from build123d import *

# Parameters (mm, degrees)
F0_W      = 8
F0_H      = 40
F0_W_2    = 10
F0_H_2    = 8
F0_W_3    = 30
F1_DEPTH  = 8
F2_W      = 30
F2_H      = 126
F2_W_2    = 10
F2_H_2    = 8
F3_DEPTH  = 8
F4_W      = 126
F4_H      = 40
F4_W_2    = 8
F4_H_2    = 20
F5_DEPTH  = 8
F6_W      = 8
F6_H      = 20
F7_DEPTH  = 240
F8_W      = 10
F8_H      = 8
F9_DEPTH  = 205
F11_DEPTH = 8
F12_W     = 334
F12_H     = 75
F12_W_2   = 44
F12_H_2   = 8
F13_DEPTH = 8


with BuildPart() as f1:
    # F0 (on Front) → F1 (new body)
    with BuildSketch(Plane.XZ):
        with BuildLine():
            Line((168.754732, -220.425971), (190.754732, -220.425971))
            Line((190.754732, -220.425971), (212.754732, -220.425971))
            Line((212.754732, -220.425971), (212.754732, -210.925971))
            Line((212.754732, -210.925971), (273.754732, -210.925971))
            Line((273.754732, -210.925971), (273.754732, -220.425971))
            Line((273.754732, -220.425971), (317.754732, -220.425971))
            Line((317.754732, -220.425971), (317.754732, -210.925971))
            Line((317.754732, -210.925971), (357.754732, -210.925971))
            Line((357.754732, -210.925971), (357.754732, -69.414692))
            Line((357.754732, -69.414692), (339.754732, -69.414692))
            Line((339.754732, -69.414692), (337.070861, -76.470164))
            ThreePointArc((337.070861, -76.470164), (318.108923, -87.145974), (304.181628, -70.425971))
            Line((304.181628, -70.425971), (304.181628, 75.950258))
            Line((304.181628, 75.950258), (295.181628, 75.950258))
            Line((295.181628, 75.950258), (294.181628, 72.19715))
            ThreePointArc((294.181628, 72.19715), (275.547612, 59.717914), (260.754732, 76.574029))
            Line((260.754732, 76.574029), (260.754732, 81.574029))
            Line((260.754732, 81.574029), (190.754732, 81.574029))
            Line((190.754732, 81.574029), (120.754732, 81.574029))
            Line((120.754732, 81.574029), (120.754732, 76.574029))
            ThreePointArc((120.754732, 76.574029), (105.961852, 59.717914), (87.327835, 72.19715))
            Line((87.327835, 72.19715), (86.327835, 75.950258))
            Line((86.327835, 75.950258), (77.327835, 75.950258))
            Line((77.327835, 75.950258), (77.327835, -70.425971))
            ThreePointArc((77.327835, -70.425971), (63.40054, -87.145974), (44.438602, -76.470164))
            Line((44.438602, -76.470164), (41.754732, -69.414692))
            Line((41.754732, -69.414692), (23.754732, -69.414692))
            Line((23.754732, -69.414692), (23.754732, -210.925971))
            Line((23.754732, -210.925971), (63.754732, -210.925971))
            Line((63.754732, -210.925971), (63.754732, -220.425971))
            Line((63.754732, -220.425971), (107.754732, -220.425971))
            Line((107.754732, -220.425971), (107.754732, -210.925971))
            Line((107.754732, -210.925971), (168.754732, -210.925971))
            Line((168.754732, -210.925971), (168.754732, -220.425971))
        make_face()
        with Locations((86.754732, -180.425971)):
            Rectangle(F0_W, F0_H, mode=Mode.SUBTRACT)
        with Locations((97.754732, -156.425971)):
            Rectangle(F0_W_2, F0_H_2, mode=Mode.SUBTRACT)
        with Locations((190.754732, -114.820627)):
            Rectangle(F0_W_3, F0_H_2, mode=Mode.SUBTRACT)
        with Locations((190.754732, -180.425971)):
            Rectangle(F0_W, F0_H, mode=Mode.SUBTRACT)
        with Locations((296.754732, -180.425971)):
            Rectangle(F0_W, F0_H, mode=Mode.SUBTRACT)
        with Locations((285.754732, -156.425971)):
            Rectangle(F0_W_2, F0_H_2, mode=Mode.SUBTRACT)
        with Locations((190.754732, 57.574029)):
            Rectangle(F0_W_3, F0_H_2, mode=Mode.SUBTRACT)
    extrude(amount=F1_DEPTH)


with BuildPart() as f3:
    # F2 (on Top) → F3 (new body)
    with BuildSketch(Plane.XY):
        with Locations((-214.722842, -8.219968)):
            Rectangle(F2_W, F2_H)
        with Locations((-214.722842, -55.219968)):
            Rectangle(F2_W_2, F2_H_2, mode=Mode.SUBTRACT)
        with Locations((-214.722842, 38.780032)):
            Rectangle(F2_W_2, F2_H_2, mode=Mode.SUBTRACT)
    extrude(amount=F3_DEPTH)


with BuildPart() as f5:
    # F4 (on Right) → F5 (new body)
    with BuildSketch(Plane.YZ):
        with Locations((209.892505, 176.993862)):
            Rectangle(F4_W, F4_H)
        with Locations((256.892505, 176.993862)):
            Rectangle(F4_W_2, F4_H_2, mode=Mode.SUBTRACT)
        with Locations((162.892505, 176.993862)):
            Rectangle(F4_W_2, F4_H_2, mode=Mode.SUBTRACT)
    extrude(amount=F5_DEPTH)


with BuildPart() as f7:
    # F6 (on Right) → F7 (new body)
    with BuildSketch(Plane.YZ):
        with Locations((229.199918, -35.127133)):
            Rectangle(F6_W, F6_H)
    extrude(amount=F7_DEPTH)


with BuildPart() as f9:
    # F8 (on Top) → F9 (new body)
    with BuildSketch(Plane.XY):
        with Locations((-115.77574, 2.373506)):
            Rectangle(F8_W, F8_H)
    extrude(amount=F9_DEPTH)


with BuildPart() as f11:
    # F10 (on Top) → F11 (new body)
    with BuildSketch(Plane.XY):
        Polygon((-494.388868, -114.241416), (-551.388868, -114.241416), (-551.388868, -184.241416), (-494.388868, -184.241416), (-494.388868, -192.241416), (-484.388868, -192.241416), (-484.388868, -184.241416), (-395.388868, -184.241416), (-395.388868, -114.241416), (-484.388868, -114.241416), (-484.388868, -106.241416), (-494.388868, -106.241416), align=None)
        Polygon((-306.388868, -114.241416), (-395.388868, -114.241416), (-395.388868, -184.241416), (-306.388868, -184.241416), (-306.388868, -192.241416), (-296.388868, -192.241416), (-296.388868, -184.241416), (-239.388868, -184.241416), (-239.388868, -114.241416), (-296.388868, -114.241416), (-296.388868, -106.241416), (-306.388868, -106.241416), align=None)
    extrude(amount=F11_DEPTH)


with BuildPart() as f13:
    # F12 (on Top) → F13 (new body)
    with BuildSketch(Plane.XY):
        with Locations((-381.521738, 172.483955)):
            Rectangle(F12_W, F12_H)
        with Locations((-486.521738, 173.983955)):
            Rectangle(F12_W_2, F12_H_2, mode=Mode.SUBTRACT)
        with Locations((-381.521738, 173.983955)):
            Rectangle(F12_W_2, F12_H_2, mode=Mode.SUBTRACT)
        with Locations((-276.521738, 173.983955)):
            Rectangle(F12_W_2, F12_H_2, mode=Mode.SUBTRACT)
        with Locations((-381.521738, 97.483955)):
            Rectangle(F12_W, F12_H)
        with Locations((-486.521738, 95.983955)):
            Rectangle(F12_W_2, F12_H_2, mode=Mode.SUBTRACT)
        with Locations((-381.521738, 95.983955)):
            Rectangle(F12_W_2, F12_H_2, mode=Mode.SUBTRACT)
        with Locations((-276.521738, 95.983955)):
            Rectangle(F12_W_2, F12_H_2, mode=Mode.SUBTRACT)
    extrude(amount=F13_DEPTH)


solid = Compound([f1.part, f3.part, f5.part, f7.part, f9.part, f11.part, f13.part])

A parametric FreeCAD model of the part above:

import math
import FreeCAD as App
import Part
import Sketcher

V = App.Vector


def add_polygon(sketch, points):
    """Adds a closed chain of lines whose ends are joined by coincident constraints."""
    first, n = sketch.GeometryCount, len(points)
    for a, b in zip(points, points[1:] + points[:1]):
        sketch.addGeometry(Part.LineSegment(App.Vector(*a, 0), App.Vector(*b, 0)), False)
    for i in range(n):
        sketch.addConstraint(Sketcher.Constraint("Coincident", first + i, 2, first + (i + 1) % n, 1))

doc = App.newDocument("Part")
body = doc.addObject("PartDesign::Body", "Body")

sketch1 = body.newObject("Sketcher::SketchObject", "Sketch")
sketch1.AttachmentSupport = (doc.getObject("XZ_Plane"), [""])
sketch1.MapMode = "FlatFace"
sketch1.addGeometry(Part.LineSegment(V(168.8, -220.4, 0), V(212.8, -220.4, 0)), False)
sketch1.addGeometry(Part.LineSegment(V(212.8, -220.4, 0), V(212.8, -210.9, 0)), False)
sketch1.addGeometry(Part.LineSegment(V(212.8, -210.9, 0), V(273.8, -210.9, 0)), False)
sketch1.addGeometry(Part.LineSegment(V(273.8, -210.9, 0), V(273.8, -220.4, 0)), False)
sketch1.addGeometry(Part.LineSegment(V(273.8, -220.4, 0), V(317.8, -220.4, 0)), False)
sketch1.addGeometry(Part.LineSegment(V(317.8, -220.4, 0), V(317.8, -210.9, 0)), False)
sketch1.addGeometry(Part.LineSegment(V(317.8, -210.9, 0), V(357.8, -210.9, 0)), False)
sketch1.addGeometry(Part.LineSegment(V(357.8, -210.9, 0), V(357.8, -69.4, 0)), False)
sketch1.addGeometry(Part.LineSegment(V(357.8, -69.4, 0), V(339.8, -69.4, 0)), False)
sketch1.addGeometry(Part.LineSegment(V(339.8, -69.4, 0), V(337.1, -76.5, 0)), False)
sketch1.addGeometry(Part.ArcOfCircle(Part.Circle(V(321.2, -70.4, 0), V(0, 0, 1), 17), math.radians(180), math.radians(339)), False)
sketch1.addGeometry(Part.LineSegment(V(304.2, -70.4, 0), V(304.2, 76, 0)), False)
sketch1.addGeometry(Part.LineSegment(V(304.2, 76, 0), V(295.2, 76, 0)), False)
sketch1.addGeometry(Part.LineSegment(V(295.2, 76, 0), V(294.2, 72.2, 0)), False)
sketch1.addGeometry(Part.ArcOfCircle(Part.Circle(V(277.8, 76.6, 0), V(0, 0, 1), 17), math.radians(-180), math.radians(-15)), False)
sketch1.addGeometry(Part.LineSegment(V(260.8, 76.6, 0), V(260.8, 81.6, 0)), False)
sketch1.addGeometry(Part.LineSegment(V(260.8, 81.6, 0), V(120.8, 81.6, 0)), False)
sketch1.addGeometry(Part.LineSegment(V(120.8, 81.6, 0), V(120.8, 76.6, 0)), False)
sketch1.addGeometry(Part.ArcOfCircle(Part.Circle(V(103.8, 76.6, 0), V(0, 0, 1), 17), math.radians(-165), math.radians(0)), False)
sketch1.addGeometry(Part.LineSegment(V(87.3, 72.2, 0), V(86.3, 76, 0)), False)
sketch1.addGeometry(Part.LineSegment(V(86.3, 76, 0), V(77.3, 76, 0)), False)
sketch1.addGeometry(Part.LineSegment(V(77.3, 76, 0), V(77.3, -70.4, 0)), False)
sketch1.addGeometry(Part.ArcOfCircle(Part.Circle(V(60.3, -70.4, 0), V(0, 0, 1), 17), math.radians(-159), math.radians(0)), False)
sketch1.addGeometry(Part.LineSegment(V(44.4, -76.5, 0), V(41.8, -69.4, 0)), False)
sketch1.addGeometry(Part.LineSegment(V(41.8, -69.4, 0), V(23.8, -69.4, 0)), False)
sketch1.addGeometry(Part.LineSegment(V(23.8, -69.4, 0), V(23.8, -210.9, 0)), False)
sketch1.addGeometry(Part.LineSegment(V(23.8, -210.9, 0), V(63.8, -210.9, 0)), False)
sketch1.addGeometry(Part.LineSegment(V(63.8, -210.9, 0), V(63.8, -220.4, 0)), False)
sketch1.addGeometry(Part.LineSegment(V(63.8, -220.4, 0), V(107.8, -220.4, 0)), False)
sketch1.addGeometry(Part.LineSegment(V(107.8, -220.4, 0), V(107.8, -210.9, 0)), False)
sketch1.addGeometry(Part.LineSegment(V(107.8, -210.9, 0), V(168.8, -210.9, 0)), False)
sketch1.addGeometry(Part.LineSegment(V(168.8, -210.9, 0), V(168.8, -220.4, 0)), False)
add_polygon(sketch1, [(90.8, -200.4), (82.8, -200.4), (82.8, -160.4), (90.8, -160.4)])
add_polygon(sketch1, [(102.8, -160.4), (92.8, -160.4), (92.8, -152.4), (102.8, -152.4)])
add_polygon(sketch1, [(194.8, -200.4), (186.8, -200.4), (186.8, -160.4), (194.8, -160.4)])
add_polygon(sketch1, [(205.8, -118.8), (175.8, -118.8), (175.8, -110.8), (205.8, -110.8)])
add_polygon(sketch1, [(300.8, -200.4), (292.8, -200.4), (292.8, -160.4), (300.8, -160.4)])
add_polygon(sketch1, [(290.8, -160.4), (280.8, -160.4), (280.8, -152.4), (290.8, -152.4)])
add_polygon(sketch1, [(205.8, 53.6), (175.8, 53.6), (175.8, 61.6), (205.8, 61.6)])
sketch1.addConstraint([
    Sketcher.Constraint("Coincident", 0, 2, 1, 1),
    Sketcher.Constraint("Coincident", 1, 2, 2, 1),
    Sketcher.Constraint("Coincident", 2, 2, 3, 1),
    Sketcher.Constraint("Coincident", 3, 2, 4, 1),
    Sketcher.Constraint("Coincident", 4, 2, 5, 1),
    Sketcher.Constraint("Coincident", 5, 2, 6, 1),
    Sketcher.Constraint("Coincident", 6, 2, 7, 1),
    Sketcher.Constraint("Coincident", 7, 2, 8, 1),
    Sketcher.Constraint("Coincident", 8, 2, 9, 1),
    Sketcher.Constraint("Tangent", 9, 2, 10, 2),
    Sketcher.Constraint("Tangent", 10, 1, 11, 1),
    Sketcher.Constraint("Coincident", 11, 2, 12, 1),
    Sketcher.Constraint("Coincident", 12, 2, 13, 1),
    Sketcher.Constraint("Tangent", 13, 2, 14, 2),
    Sketcher.Constraint("Tangent", 14, 1, 15, 1),
    Sketcher.Constraint("Coincident", 15, 2, 16, 1),
    Sketcher.Constraint("Coincident", 16, 2, 17, 1),
    Sketcher.Constraint("Tangent", 17, 2, 18, 2),
    Sketcher.Constraint("Tangent", 18, 1, 19, 1),
    Sketcher.Constraint("Coincident", 19, 2, 20, 1),
    Sketcher.Constraint("Coincident", 20, 2, 21, 1),
    Sketcher.Constraint("Tangent", 21, 2, 22, 2),
    Sketcher.Constraint("Tangent", 22, 1, 23, 1),
    Sketcher.Constraint("Coincident", 23, 2, 24, 1),
    Sketcher.Constraint("Coincident", 24, 2, 25, 1),
    Sketcher.Constraint("Coincident", 25, 2, 26, 1),
    Sketcher.Constraint("Coincident", 26, 2, 27, 1),
    Sketcher.Constraint("Coincident", 27, 2, 28, 1),
    Sketcher.Constraint("Coincident", 28, 2, 29, 1),
    Sketcher.Constraint("Coincident", 29, 2, 30, 1),
    Sketcher.Constraint("Coincident", 30, 2, 31, 1),
    Sketcher.Constraint("Coincident", 31, 2, 0, 1),
    Sketcher.Constraint("Horizontal", 0),
    Sketcher.Constraint("Vertical", 1),
    Sketcher.Constraint("Horizontal", 2),
    Sketcher.Constraint("Vertical", 3),
    Sketcher.Constraint("Horizontal", 4),
    Sketcher.Constraint("Vertical", 5),
    Sketcher.Constraint("Horizontal", 6),
    Sketcher.Constraint("Vertical", 7),
    Sketcher.Constraint("Horizontal", 8),
    Sketcher.Constraint("Vertical", 11),
    Sketcher.Constraint("Horizontal", 12),
    Sketcher.Constraint("Vertical", 15),
    Sketcher.Constraint("Horizontal", 16),
    Sketcher.Constraint("Vertical", 17),
    Sketcher.Constraint("Horizontal", 20),
    Sketcher.Constraint("Vertical", 21),
    Sketcher.Constraint("Horizontal", 24),
    Sketcher.Constraint("Vertical", 25),
    Sketcher.Constraint("Horizontal", 26),
    Sketcher.Constraint("Vertical", 27),
    Sketcher.Constraint("Horizontal", 28),
    Sketcher.Constraint("Vertical", 29),
    Sketcher.Constraint("Horizontal", 30),
    Sketcher.Constraint("Vertical", 31),
    Sketcher.Constraint("Horizontal", 32),
    Sketcher.Constraint("Vertical", 33),
    Sketcher.Constraint("Horizontal", 34),
    Sketcher.Constraint("Vertical", 35),
    Sketcher.Constraint("Horizontal", 36),
    Sketcher.Constraint("Vertical", 37),
    Sketcher.Constraint("Horizontal", 38),
    Sketcher.Constraint("Vertical", 39),
    Sketcher.Constraint("Horizontal", 40),
    Sketcher.Constraint("Vertical", 41),
    Sketcher.Constraint("Horizontal", 42),
    Sketcher.Constraint("Vertical", 43),
    Sketcher.Constraint("Horizontal", 44),
    Sketcher.Constraint("Vertical", 45),
    Sketcher.Constraint("Horizontal", 46),
    Sketcher.Constraint("Vertical", 47),
    Sketcher.Constraint("Horizontal", 48),
    Sketcher.Constraint("Vertical", 49),
    Sketcher.Constraint("Horizontal", 50),
    Sketcher.Constraint("Vertical", 51),
    Sketcher.Constraint("Horizontal", 52),
    Sketcher.Constraint("Vertical", 53),
    Sketcher.Constraint("Horizontal", 54),
    Sketcher.Constraint("Vertical", 55),
    Sketcher.Constraint("Horizontal", 56),
    Sketcher.Constraint("Vertical", 57),
    Sketcher.Constraint("Horizontal", 58),
    Sketcher.Constraint("Vertical", 59),
    Sketcher.Constraint("Equal", 10, 14),
    Sketcher.Constraint("Equal", 14, 18),
    Sketcher.Constraint("Equal", 18, 22),
    Sketcher.Constraint("Horizontal", 14, 3, 18, 3),
    Sketcher.Constraint("Horizontal", 10, 3, 22, 3),
    Sketcher.Constraint("Horizontal", 0, 2, 3, 2),
    Sketcher.Constraint("Horizontal", 2, 2, 5, 2),
    Sketcher.Constraint("Horizontal", 13, 2, 18, 1),
    Sketcher.Constraint("Horizontal", 12, 2, 19, 2),
    Sketcher.Constraint("Horizontal", 9, 2, 22, 1),
    Sketcher.Constraint("Horizontal", 8, 2, 23, 2),
    Sketcher.Constraint("Horizontal", 6, 2, 25, 2),
    Sketcher.Constraint("Horizontal", 4, 2, 27, 2),
    Sketcher.Constraint("Horizontal", 26, 2, 29, 2),
    Sketcher.Constraint("Horizontal", 34, 2, 36, 2),
    Sketcher.Constraint("Horizontal", 35, 2, 40, 2),
    Sketcher.Constraint("Horizontal", 39, 2, 41, 2),
    Sketcher.Constraint("Horizontal", 43, 2, 48, 2),
    Sketcher.Constraint("Horizontal", 42, 2, 49, 2),
    Sketcher.Constraint("Horizontal", 50, 2, 52, 2),
    Sketcher.Constraint("Horizontal", 38, 2, 53, 2),
    Sketcher.Constraint("Vertical", 45, 2, 56, 2),
    Sketcher.Constraint("Vertical", 47, 2, 58, 2),
    Sketcher.Constraint("Equal", 0, 4),
    Sketcher.Constraint("Equal", 12, 20),
    Sketcher.Constraint("Equal", 8, 24),
    Sketcher.Constraint("Equal", 6, 26),
    Sketcher.Constraint("Equal", 4, 28),
    Sketcher.Constraint("Equal", 2, 30),
    Sketcher.Constraint("Equal", 34, 40),
    Sketcher.Constraint("Equal", 42, 48),
    Sketcher.Constraint("Equal", 38, 52),
    Sketcher.Constraint("Equal", 26, 33),
    Sketcher.Constraint("Equal", 50, 37),
    Sketcher.Constraint("Equal", 39, 45),
    Sketcher.Constraint("Equal", 55, 57),
    Sketcher.Constraint("Radius", 10, 17.0),
    Sketcher.Constraint("DistanceX", 0, 1, 0, 2, 44.0),
    Sketcher.Constraint("DistanceX", 2, 1, 2, 2, 61.0),
    Sketcher.Constraint("DistanceX", 6, 1, 6, 2, 40.0),
    Sketcher.Constraint("DistanceX", 8, 2, 8, 1, 18.0),
    Sketcher.Constraint("DistanceX", 12, 2, 12, 1, 9.0),
    Sketcher.Constraint("DistanceX", 16, 2, 16, 1, 140.0),
    Sketcher.Constraint("DistanceX", 32, 2, 32, 1, 8.0),
    Sketcher.Constraint("DistanceX", 36, 2, 36, 1, 10.0),
    Sketcher.Constraint("DistanceX", 44, 2, 44, 1, 30.0),
    Sketcher.Constraint("DistanceY", 15, 1, 15, 2, 5.0),
    Sketcher.Constraint("DistanceY", 1, 1, 1, 2, 9.5),
    Sketcher.Constraint("Distance", 9, 7.548698),
    Sketcher.Constraint("DistanceY", 7, 1, 7, 2, 141.511279),
    Sketcher.Constraint("DistanceY", 11, 1, 11, 2, 146.376229),
    Sketcher.Constraint("DistanceX", -1, 1, 22, 1, 44.438602),
    Sketcher.Constraint("DistanceY", 10, 3, -1, 1, 70.425972),
    Sketcher.Constraint("DistanceX", -1, 1, 14, 3, 277.754732),
    Sketcher.Constraint("DistanceY", -1, 1, 14, 3, 76.574029),
    Sketcher.Constraint("DistanceY", 32, 2, -1, 1, 200.425971),
    Sketcher.Constraint("DistanceX", -1, 1, 40, 2, 186.754732),
    Sketcher.Constraint("DistanceX", -1, 1, 44, 2, 175.754732),
    Sketcher.Constraint("DistanceX", -1, 1, 48, 2, 292.754732),
    Sketcher.Constraint("DistanceX", -1, 1, 52, 2, 280.754732),
    Sketcher.Constraint("DistanceY", -1, 1, 56, 2, 53.574029),
    Sketcher.Constraint("DistanceX", -1, 1, 32, 2, 82.754732),
    Sketcher.Constraint("DistanceX", -1, 1, 36, 2, 92.754732),
    Sketcher.Constraint("DistanceY", 44, 2, -1, 1, 118.820627),
])
pad1 = body.newObject("PartDesign::Pad", "Pad")
pad1.Profile = sketch1
pad1.Length = 8
body2 = doc.addObject("PartDesign::Body", "Body001")

sketch2 = body2.newObject("Sketcher::SketchObject", "Sketch001")
sketch2.AttachmentSupport = (doc.getObject("XY_Plane001"), [""])
sketch2.MapMode = "FlatFace"
add_polygon(sketch2, [(-230, 55), (-230, -71), (-200, -71), (-200, 55)])
add_polygon(sketch2, [(-210, -59), (-220, -59), (-220, -51), (-210, -51)])
add_polygon(sketch2, [(-210, 35), (-220, 35), (-220, 43), (-210, 43)])
sketch2.addConstraint([
    Sketcher.Constraint("Vertical", 0),
    Sketcher.Constraint("Horizontal", 1),
    Sketcher.Constraint("Vertical", 2),
    Sketcher.Constraint("Horizontal", 3),
    Sketcher.Constraint("Horizontal", 4),
    Sketcher.Constraint("Vertical", 5),
    Sketcher.Constraint("Horizontal", 6),
    Sketcher.Constraint("Vertical", 7),
    Sketcher.Constraint("Horizontal", 8),
    Sketcher.Constraint("Vertical", 9),
    Sketcher.Constraint("Horizontal", 10),
    Sketcher.Constraint("Vertical", 11),
    Sketcher.Constraint("Vertical", 5, 2, 8, 2),
    Sketcher.Constraint("Vertical", 7, 2, 10, 2),
    Sketcher.Constraint("Equal", 7, 9),
    Sketcher.Constraint("DistanceX", 1, 1, 1, 2, 30.0),
    Sketcher.Constraint("DistanceX", 4, 2, 4, 1, 10.0),
    Sketcher.Constraint("DistanceY", 0, 2, 0, 1, 126.0),
    Sketcher.Constraint("DistanceY", 5, 1, 5, 2, 8.0),
    Sketcher.Constraint("DistanceX", 0, 2, 4, 2, 10.0),
    Sketcher.Constraint("DistanceY", 0, 2, 4, 2, 12.0),
    Sketcher.Constraint("DistanceY", 8, 2, 3, 2, 20.0),
    Sketcher.Constraint("DistanceX", 0, 2, -1, 1, 229.722842),
    Sketcher.Constraint("DistanceY", 0, 2, -1, 1, 71.219968),
])
pad2 = body2.newObject("PartDesign::Pad", "Pad001")
pad2.Profile = sketch2
pad2.Length = 8
body3 = doc.addObject("PartDesign::Body", "Body002")

sketch3 = body3.newObject("Sketcher::SketchObject", "Sketch002")
sketch3.AttachmentSupport = (doc.getObject("YZ_Plane002"), [""])
sketch3.MapMode = "FlatFace"
add_polygon(sketch3, [(147, 197), (147, 157), (273, 157), (273, 197)])
add_polygon(sketch3, [(167, 167), (159, 167), (159, 187), (167, 187)])
add_polygon(sketch3, [(261, 167), (253, 167), (253, 187), (261, 187)])
sketch3.addConstraint([
    Sketcher.Constraint("Vertical", 0),
    Sketcher.Constraint("Horizontal", 1),
    Sketcher.Constraint("Vertical", 2),
    Sketcher.Constraint("Horizontal", 3),
    Sketcher.Constraint("Horizontal", 4),
    Sketcher.Constraint("Vertical", 5),
    Sketcher.Constraint("Horizontal", 6),
    Sketcher.Constraint("Vertical", 7),
    Sketcher.Constraint("Horizontal", 8),
    Sketcher.Constraint("Vertical", 9),
    Sketcher.Constraint("Horizontal", 10),
    Sketcher.Constraint("Vertical", 11),
    Sketcher.Constraint("Horizontal", 7, 2, 8, 2),
    Sketcher.Constraint("Horizontal", 6, 2, 9, 2),
    Sketcher.Constraint("Equal", 6, 8),
    Sketcher.Constraint("DistanceX", 1, 1, 1, 2, 126.0),
    Sketcher.Constraint("DistanceX", 4, 2, 4, 1, 8.0),
    Sketcher.Constraint("DistanceY", 0, 2, 0, 1, 40.0),
    Sketcher.Constraint("DistanceY", 5, 1, 5, 2, 20.0),
    Sketcher.Constraint("DistanceX", 0, 2, 4, 2, 12.0),
    Sketcher.Constraint("DistanceY", 0, 2, 4, 2, 10.0),
    Sketcher.Constraint("DistanceX", 8, 2, 1, 2, 20.0),
    Sketcher.Constraint("DistanceY", -1, 1, 0, 2, 156.993862),
    Sketcher.Constraint("DistanceX", -1, 1, 0, 2, 146.892505),
])
pad3 = body3.newObject("PartDesign::Pad", "Pad002")
pad3.Profile = sketch3
pad3.Length = 8
body4 = doc.addObject("PartDesign::Body", "Body003")

sketch4 = body4.newObject("Sketcher::SketchObject", "Sketch003")
sketch4.AttachmentSupport = (doc.getObject("YZ_Plane003"), [""])
sketch4.MapMode = "FlatFace"
add_polygon(sketch4, [(225, -25), (225, -45), (233, -45), (233, -25)])
sketch4.addConstraint([
    Sketcher.Constraint("Vertical", 0),
    Sketcher.Constraint("Horizontal", 1),
    Sketcher.Constraint("Vertical", 2),
    Sketcher.Constraint("Horizontal", 3),
    Sketcher.Constraint("DistanceX", 1, 1, 1, 2, 8.0),
    Sketcher.Constraint("DistanceY", 0, 2, 0, 1, 20.0),
    Sketcher.Constraint("DistanceX", -1, 1, 0, 2, 225.199918),
    Sketcher.Constraint("DistanceY", 0, 2, -1, 1, 45.127133),
])
pad4 = body4.newObject("PartDesign::Pad", "Pad003")
pad4.Profile = sketch4
pad4.Length = 240
body5 = doc.addObject("PartDesign::Body", "Body004")

sketch5 = body5.newObject("Sketcher::SketchObject", "Sketch004")
sketch5.AttachmentSupport = (doc.getObject("XY_Plane004"), [""])
sketch5.MapMode = "FlatFace"
add_polygon(sketch5, [(-121, 6), (-121, -2), (-111, -2), (-111, 6)])
sketch5.addConstraint([
    Sketcher.Constraint("Vertical", 0),
    Sketcher.Constraint("Horizontal", 1),
    Sketcher.Constraint("Vertical", 2),
    Sketcher.Constraint("Horizontal", 3),
    Sketcher.Constraint("DistanceX", 1, 1, 1, 2, 10.0),
    Sketcher.Constraint("DistanceY", 0, 2, 0, 1, 8.0),
    Sketcher.Constraint("DistanceX", 0, 2, -1, 1, 120.77574),
    Sketcher.Constraint("DistanceY", 0, 2, -1, 1, 1.626494),
])
pad5 = body5.newObject("PartDesign::Pad", "Pad004")
pad5.Profile = sketch5
pad5.Length = 205
body6 = doc.addObject("PartDesign::Body", "Body005")

sketch6 = body6.newObject("Sketcher::SketchObject", "Sketch005")
sketch6.AttachmentSupport = (doc.getObject("XY_Plane005"), [""])
sketch6.MapMode = "FlatFace"
add_polygon(sketch6, [(-494, -114), (-551, -114), (-551, -184), (-494, -184), (-494, -192), (-484, -192), (-484, -184), (-306, -184), (-306, -192), (-296, -192), (-296, -184), (-239, -184), (-239, -114), (-296, -114), (-296, -106), (-306, -106), (-306, -114), (-484, -114), (-484, -106), (-494, -106)])
sketch6.addConstraint([
    Sketcher.Constraint("Horizontal", 0),
    Sketcher.Constraint("Vertical", 1),
    Sketcher.Constraint("Horizontal", 2),
    Sketcher.Constraint("Vertical", 3),
    Sketcher.Constraint("Horizontal", 4),
    Sketcher.Constraint("Vertical", 5),
    Sketcher.Constraint("Horizontal", 6),
    Sketcher.Constraint("Vertical", 7),
    Sketcher.Constraint("Horizontal", 8),
    Sketcher.Constraint("Vertical", 9),
    Sketcher.Constraint("Horizontal", 10),
    Sketcher.Constraint("Vertical", 11),
    Sketcher.Constraint("Horizontal", 12),
    Sketcher.Constraint("Vertical", 13),
    Sketcher.Constraint("Horizontal", 14),
    Sketcher.Constraint("Vertical", 15),
    Sketcher.Constraint("Horizontal", 16),
    Sketcher.Constraint("Vertical", 17),
    Sketcher.Constraint("Horizontal", 18),
    Sketcher.Constraint("Vertical", 19),
    Sketcher.Constraint("Horizontal", 2, 2, 5, 2),
    Sketcher.Constraint("Horizontal", 4, 2, 7, 2),
    Sketcher.Constraint("Horizontal", 6, 2, 9, 2),
    Sketcher.Constraint("Horizontal", 0, 2, 11, 2),
    Sketcher.Constraint("Horizontal", 12, 2, 15, 2),
    Sketcher.Constraint("Horizontal", 14, 2, 17, 2),
    Sketcher.Constraint("Vertical", 9, 2, 12, 2),
    Sketcher.Constraint("Vertical", 7, 2, 14, 2),
    Sketcher.Constraint("Vertical", 5, 2, 16, 2),
    Sketcher.Constraint("Vertical", 3, 2, 18, 2),
    Sketcher.Constraint("Equal", 4, 8),
    Sketcher.Constraint("Equal", 2, 10),
    Sketcher.Constraint("Equal", 9, 13),
    Sketcher.Constraint("DistanceX", 0, 2, 0, 1, 57.0),
    Sketcher.Constraint("DistanceX", 4, 1, 4, 2, 10.0),
    Sketcher.Constraint("DistanceX", 6, 1, 6, 2, 178.0),
    Sketcher.Constraint("DistanceY", 1, 2, 1, 1, 70.0),
    Sketcher.Constraint("DistanceY", 3, 2, 3, 1, 8.0),
    Sketcher.Constraint("DistanceX", 0, 2, -1, 1, 551.388868),
    Sketcher.Constraint("DistanceY", 0, 2, -1, 1, 114.241416),
])
pad6 = body6.newObject("PartDesign::Pad", "Pad005")
pad6.Profile = sketch6
pad6.Length = 8
body7 = doc.addObject("PartDesign::Body", "Body006")

sketch7 = body7.newObject("Sketcher::SketchObject", "Sketch006")
sketch7.AttachmentSupport = (doc.getObject("XY_Plane006"), [""])
sketch7.MapMode = "FlatFace"
add_polygon(sketch7, [(-549, 210), (-549, 60), (-215, 60), (-215, 210)])
add_polygon(sketch7, [(-465, 92), (-509, 92), (-509, 100), (-465, 100)])
add_polygon(sketch7, [(-360, 92), (-404, 92), (-404, 100), (-360, 100)])
add_polygon(sketch7, [(-255, 92), (-299, 92), (-299, 100), (-255, 100)])
add_polygon(sketch7, [(-465, 170), (-509, 170), (-509, 178), (-465, 178)])
add_polygon(sketch7, [(-360, 170), (-404, 170), (-404, 178), (-360, 178)])
add_polygon(sketch7, [(-255, 170), (-299, 170), (-299, 178), (-255, 178)])
sketch7.addConstraint([
    Sketcher.Constraint("Vertical", 0),
    Sketcher.Constraint("Horizontal", 1),
    Sketcher.Constraint("Vertical", 2),
    Sketcher.Constraint("Horizontal", 3),
    Sketcher.Constraint("Horizontal", 4),
    Sketcher.Constraint("Vertical", 5),
    Sketcher.Constraint("Horizontal", 6),
    Sketcher.Constraint("Vertical", 7),
    Sketcher.Constraint("Horizontal", 8),
    Sketcher.Constraint("Vertical", 9),
    Sketcher.Constraint("Horizontal", 10),
    Sketcher.Constraint("Vertical", 11),
    Sketcher.Constraint("Horizontal", 12),
    Sketcher.Constraint("Vertical", 13),
    Sketcher.Constraint("Horizontal", 14),
    Sketcher.Constraint("Vertical", 15),
    Sketcher.Constraint("Horizontal", 16),
    Sketcher.Constraint("Vertical", 17),
    Sketcher.Constraint("Horizontal", 18),
    Sketcher.Constraint("Vertical", 19),
    Sketcher.Constraint("Horizontal", 20),
    Sketcher.Constraint("Vertical", 21),
    Sketcher.Constraint("Horizontal", 22),
    Sketcher.Constraint("Vertical", 23),
    Sketcher.Constraint("Horizontal", 24),
    Sketcher.Constraint("Vertical", 25),
    Sketcher.Constraint("Horizontal", 26),
    Sketcher.Constraint("Vertical", 27),
    Sketcher.Constraint("Horizontal", 7, 2, 8, 2),
    Sketcher.Constraint("Horizontal", 6, 2, 9, 2),
    Sketcher.Constraint("Horizontal", 11, 2, 12, 2),
    Sketcher.Constraint("Horizontal", 10, 2, 13, 2),
    Sketcher.Constraint("Horizontal", 19, 2, 20, 2),
    Sketcher.Constraint("Horizontal", 18, 2, 21, 2),
    Sketcher.Constraint("Horizontal", 23, 2, 24, 2),
    Sketcher.Constraint("Horizontal", 22, 2, 25, 2),
    Sketcher.Constraint("Vertical", 5, 2, 16, 2),
    Sketcher.Constraint("Vertical", 7, 2, 18, 2),
    Sketcher.Constraint("Vertical", 9, 2, 20, 2),
    Sketcher.Constraint("Vertical", 11, 2, 22, 2),
    Sketcher.Constraint("Vertical", 13, 2, 24, 2),
    Sketcher.Constraint("Vertical", 15, 2, 26, 2),
    Sketcher.Constraint("Equal", 6, 8),
    Sketcher.Constraint("Equal", 10, 12),
    Sketcher.Constraint("Equal", 15, 17),
    Sketcher.Constraint("DistanceX", 1, 1, 1, 2, 334.0),
    Sketcher.Constraint("DistanceX", 4, 2, 4, 1, 44.0),
    Sketcher.Constraint("DistanceY", 0, 2, 0, 1, 150.0),
    Sketcher.Constraint("DistanceY", 5, 1, 5, 2, 8.0),
    Sketcher.Constraint("DistanceX", 0, 2, 4, 2, 40.0),
    Sketcher.Constraint("DistanceY", 0, 2, 4, 2, 32.0),
    Sketcher.Constraint("DistanceX", 7, 2, 8, 2, 61.0),
    Sketcher.Constraint("DistanceX", 11, 2, 12, 2, 61.0),
    Sketcher.Constraint("DistanceY", 16, 2, 3, 2, 40.0),
    Sketcher.Constraint("DistanceX", 0, 2, -1, 1, 548.521738),
    Sketcher.Constraint("DistanceY", -1, 1, 0, 2, 59.983955),
])
pad7 = body7.newObject("PartDesign::Pad", "Pad006")
pad7.Profile = sketch7
pad7.Length = 8

doc.recompute()
